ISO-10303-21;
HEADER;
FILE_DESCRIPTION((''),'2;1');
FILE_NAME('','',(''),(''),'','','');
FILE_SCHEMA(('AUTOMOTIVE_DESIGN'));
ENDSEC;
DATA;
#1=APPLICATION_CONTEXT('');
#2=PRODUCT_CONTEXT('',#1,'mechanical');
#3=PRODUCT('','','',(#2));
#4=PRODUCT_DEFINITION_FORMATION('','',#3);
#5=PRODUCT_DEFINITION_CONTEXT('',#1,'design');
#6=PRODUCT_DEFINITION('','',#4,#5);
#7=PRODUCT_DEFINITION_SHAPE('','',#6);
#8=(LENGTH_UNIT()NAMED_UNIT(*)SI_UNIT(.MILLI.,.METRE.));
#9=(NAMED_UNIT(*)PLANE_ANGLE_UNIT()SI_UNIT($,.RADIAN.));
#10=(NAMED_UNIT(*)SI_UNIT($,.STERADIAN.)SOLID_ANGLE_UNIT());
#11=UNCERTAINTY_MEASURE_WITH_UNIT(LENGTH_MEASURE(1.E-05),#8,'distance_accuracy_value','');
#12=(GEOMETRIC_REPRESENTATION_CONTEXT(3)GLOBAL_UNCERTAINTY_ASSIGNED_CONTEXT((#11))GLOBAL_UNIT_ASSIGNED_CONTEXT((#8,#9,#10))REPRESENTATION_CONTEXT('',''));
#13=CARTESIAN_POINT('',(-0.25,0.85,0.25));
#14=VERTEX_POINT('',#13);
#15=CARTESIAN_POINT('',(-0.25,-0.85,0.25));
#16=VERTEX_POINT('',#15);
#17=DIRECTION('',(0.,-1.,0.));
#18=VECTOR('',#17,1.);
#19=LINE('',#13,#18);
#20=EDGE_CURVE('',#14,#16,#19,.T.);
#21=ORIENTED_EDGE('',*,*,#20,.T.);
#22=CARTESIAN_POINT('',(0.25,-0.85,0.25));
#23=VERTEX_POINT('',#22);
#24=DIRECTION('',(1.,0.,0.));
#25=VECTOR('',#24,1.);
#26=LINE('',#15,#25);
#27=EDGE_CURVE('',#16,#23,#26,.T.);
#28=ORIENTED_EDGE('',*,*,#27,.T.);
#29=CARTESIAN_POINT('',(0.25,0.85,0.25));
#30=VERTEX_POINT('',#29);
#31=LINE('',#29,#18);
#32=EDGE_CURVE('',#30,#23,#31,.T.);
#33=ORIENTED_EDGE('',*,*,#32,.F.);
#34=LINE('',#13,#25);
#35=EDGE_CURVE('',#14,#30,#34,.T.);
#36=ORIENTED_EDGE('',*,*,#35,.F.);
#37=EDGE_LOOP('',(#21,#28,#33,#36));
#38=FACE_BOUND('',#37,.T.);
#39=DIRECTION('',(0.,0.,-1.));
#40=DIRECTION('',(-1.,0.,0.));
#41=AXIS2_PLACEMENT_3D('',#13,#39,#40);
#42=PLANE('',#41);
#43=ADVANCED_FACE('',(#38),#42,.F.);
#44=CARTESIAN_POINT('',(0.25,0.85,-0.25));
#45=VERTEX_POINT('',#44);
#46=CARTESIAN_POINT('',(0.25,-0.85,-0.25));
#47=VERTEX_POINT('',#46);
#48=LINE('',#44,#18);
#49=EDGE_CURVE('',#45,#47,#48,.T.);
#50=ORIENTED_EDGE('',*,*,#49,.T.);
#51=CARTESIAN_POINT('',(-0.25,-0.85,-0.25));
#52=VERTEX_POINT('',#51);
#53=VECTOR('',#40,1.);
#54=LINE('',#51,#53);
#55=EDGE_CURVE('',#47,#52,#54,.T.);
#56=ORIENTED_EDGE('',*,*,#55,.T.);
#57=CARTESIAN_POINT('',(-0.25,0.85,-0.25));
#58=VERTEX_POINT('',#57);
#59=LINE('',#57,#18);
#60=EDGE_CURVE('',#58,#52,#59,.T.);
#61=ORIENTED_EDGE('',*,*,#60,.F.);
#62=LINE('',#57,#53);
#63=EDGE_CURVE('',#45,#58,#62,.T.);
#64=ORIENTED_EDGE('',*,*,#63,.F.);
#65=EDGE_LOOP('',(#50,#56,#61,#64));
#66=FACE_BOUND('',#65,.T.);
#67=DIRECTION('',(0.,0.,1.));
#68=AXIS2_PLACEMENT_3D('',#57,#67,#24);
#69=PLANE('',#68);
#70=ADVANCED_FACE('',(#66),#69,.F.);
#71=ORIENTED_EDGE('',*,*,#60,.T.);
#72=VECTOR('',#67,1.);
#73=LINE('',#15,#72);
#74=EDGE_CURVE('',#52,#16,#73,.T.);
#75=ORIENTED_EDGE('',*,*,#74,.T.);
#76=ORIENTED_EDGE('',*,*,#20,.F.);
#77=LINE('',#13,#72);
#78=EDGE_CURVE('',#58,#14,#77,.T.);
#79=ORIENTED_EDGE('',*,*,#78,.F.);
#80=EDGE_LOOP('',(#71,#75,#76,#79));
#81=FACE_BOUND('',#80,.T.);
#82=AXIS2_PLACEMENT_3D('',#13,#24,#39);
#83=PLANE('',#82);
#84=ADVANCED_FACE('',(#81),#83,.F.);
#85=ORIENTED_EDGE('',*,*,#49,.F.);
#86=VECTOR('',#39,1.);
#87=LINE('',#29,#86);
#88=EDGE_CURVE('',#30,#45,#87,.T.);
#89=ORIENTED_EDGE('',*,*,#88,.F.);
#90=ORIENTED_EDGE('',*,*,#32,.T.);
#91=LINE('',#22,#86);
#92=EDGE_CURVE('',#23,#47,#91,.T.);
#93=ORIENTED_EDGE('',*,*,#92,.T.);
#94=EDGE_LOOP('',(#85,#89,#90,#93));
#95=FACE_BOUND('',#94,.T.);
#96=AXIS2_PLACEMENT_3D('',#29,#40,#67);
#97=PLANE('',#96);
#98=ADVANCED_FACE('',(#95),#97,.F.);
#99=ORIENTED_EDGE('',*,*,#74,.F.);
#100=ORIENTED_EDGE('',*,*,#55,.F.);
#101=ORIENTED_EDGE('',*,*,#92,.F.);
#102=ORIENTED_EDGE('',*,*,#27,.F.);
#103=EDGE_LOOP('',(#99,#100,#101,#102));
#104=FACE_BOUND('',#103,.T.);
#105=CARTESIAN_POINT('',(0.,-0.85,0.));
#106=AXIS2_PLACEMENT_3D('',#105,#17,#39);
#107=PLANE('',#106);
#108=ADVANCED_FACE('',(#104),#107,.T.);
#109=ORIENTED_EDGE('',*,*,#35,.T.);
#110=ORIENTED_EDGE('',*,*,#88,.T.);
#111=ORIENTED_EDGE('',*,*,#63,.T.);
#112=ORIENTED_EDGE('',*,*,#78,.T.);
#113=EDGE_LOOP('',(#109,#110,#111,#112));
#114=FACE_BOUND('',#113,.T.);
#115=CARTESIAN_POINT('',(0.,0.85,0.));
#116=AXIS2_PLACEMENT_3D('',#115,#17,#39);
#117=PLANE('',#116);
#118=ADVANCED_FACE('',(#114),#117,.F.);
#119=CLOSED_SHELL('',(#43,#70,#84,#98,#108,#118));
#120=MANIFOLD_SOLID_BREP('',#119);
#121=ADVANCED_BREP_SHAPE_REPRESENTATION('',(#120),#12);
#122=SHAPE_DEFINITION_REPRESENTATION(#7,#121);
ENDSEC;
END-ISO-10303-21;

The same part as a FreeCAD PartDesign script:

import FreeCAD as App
import Part
import Sketcher
from FreeCAD import Vector


def add_polygon(sketch, points):
    """Adds a closed chain of lines whose ends are joined by coincident constraints."""
    first, n = sketch.GeometryCount, len(points)
    for a, b in zip(points, points[1:] + points[:1]):
        sketch.addGeometry(Part.LineSegment(App.Vector(*a, 0), App.Vector(*b, 0)), False)
    for i in range(n):
        sketch.addConstraint(Sketcher.Constraint("Coincident", first + i, 2, first + (i + 1) % n, 1))

doc = App.newDocument("Part")
body = doc.addObject("PartDesign::Body", "Body")

sketch1 = doc.addObject("Sketcher::SketchObject", "Sketch")
body.addObject(sketch1)
sketch1.AttachmentSupport = (doc.XZ_Plane, [""])
sketch1.MapMode = "FlatFace"
add_polygon(sketch1, [(-0.2, -0.2), (-0.2, 0.2), (0.2, 0.2), (0.2, -0.2)])
sketch1.addConstraint([
    Sketcher.Constraint("Vertical", 0),
    Sketcher.Constraint("Horizontal", 1),
    Sketcher.Constraint("Vertical", 2),
    Sketcher.Constraint("Horizontal", 3),
    Sketcher.Constraint("Symmetric", 0, 2, 2, 2, -1, 1),
    Sketcher.Constraint("Equal", 3, 0),
    Sketcher.Constraint("DistanceX", 1, 1, 1, 2, 0.5),
])
pad1 = doc.addObject("PartDesign::Pad", "Pad")
body.addObject(pad1)
pad1.Profile = sketch1
pad1.Length = 1.7
pad1.Midplane = True

doc.recompute()
